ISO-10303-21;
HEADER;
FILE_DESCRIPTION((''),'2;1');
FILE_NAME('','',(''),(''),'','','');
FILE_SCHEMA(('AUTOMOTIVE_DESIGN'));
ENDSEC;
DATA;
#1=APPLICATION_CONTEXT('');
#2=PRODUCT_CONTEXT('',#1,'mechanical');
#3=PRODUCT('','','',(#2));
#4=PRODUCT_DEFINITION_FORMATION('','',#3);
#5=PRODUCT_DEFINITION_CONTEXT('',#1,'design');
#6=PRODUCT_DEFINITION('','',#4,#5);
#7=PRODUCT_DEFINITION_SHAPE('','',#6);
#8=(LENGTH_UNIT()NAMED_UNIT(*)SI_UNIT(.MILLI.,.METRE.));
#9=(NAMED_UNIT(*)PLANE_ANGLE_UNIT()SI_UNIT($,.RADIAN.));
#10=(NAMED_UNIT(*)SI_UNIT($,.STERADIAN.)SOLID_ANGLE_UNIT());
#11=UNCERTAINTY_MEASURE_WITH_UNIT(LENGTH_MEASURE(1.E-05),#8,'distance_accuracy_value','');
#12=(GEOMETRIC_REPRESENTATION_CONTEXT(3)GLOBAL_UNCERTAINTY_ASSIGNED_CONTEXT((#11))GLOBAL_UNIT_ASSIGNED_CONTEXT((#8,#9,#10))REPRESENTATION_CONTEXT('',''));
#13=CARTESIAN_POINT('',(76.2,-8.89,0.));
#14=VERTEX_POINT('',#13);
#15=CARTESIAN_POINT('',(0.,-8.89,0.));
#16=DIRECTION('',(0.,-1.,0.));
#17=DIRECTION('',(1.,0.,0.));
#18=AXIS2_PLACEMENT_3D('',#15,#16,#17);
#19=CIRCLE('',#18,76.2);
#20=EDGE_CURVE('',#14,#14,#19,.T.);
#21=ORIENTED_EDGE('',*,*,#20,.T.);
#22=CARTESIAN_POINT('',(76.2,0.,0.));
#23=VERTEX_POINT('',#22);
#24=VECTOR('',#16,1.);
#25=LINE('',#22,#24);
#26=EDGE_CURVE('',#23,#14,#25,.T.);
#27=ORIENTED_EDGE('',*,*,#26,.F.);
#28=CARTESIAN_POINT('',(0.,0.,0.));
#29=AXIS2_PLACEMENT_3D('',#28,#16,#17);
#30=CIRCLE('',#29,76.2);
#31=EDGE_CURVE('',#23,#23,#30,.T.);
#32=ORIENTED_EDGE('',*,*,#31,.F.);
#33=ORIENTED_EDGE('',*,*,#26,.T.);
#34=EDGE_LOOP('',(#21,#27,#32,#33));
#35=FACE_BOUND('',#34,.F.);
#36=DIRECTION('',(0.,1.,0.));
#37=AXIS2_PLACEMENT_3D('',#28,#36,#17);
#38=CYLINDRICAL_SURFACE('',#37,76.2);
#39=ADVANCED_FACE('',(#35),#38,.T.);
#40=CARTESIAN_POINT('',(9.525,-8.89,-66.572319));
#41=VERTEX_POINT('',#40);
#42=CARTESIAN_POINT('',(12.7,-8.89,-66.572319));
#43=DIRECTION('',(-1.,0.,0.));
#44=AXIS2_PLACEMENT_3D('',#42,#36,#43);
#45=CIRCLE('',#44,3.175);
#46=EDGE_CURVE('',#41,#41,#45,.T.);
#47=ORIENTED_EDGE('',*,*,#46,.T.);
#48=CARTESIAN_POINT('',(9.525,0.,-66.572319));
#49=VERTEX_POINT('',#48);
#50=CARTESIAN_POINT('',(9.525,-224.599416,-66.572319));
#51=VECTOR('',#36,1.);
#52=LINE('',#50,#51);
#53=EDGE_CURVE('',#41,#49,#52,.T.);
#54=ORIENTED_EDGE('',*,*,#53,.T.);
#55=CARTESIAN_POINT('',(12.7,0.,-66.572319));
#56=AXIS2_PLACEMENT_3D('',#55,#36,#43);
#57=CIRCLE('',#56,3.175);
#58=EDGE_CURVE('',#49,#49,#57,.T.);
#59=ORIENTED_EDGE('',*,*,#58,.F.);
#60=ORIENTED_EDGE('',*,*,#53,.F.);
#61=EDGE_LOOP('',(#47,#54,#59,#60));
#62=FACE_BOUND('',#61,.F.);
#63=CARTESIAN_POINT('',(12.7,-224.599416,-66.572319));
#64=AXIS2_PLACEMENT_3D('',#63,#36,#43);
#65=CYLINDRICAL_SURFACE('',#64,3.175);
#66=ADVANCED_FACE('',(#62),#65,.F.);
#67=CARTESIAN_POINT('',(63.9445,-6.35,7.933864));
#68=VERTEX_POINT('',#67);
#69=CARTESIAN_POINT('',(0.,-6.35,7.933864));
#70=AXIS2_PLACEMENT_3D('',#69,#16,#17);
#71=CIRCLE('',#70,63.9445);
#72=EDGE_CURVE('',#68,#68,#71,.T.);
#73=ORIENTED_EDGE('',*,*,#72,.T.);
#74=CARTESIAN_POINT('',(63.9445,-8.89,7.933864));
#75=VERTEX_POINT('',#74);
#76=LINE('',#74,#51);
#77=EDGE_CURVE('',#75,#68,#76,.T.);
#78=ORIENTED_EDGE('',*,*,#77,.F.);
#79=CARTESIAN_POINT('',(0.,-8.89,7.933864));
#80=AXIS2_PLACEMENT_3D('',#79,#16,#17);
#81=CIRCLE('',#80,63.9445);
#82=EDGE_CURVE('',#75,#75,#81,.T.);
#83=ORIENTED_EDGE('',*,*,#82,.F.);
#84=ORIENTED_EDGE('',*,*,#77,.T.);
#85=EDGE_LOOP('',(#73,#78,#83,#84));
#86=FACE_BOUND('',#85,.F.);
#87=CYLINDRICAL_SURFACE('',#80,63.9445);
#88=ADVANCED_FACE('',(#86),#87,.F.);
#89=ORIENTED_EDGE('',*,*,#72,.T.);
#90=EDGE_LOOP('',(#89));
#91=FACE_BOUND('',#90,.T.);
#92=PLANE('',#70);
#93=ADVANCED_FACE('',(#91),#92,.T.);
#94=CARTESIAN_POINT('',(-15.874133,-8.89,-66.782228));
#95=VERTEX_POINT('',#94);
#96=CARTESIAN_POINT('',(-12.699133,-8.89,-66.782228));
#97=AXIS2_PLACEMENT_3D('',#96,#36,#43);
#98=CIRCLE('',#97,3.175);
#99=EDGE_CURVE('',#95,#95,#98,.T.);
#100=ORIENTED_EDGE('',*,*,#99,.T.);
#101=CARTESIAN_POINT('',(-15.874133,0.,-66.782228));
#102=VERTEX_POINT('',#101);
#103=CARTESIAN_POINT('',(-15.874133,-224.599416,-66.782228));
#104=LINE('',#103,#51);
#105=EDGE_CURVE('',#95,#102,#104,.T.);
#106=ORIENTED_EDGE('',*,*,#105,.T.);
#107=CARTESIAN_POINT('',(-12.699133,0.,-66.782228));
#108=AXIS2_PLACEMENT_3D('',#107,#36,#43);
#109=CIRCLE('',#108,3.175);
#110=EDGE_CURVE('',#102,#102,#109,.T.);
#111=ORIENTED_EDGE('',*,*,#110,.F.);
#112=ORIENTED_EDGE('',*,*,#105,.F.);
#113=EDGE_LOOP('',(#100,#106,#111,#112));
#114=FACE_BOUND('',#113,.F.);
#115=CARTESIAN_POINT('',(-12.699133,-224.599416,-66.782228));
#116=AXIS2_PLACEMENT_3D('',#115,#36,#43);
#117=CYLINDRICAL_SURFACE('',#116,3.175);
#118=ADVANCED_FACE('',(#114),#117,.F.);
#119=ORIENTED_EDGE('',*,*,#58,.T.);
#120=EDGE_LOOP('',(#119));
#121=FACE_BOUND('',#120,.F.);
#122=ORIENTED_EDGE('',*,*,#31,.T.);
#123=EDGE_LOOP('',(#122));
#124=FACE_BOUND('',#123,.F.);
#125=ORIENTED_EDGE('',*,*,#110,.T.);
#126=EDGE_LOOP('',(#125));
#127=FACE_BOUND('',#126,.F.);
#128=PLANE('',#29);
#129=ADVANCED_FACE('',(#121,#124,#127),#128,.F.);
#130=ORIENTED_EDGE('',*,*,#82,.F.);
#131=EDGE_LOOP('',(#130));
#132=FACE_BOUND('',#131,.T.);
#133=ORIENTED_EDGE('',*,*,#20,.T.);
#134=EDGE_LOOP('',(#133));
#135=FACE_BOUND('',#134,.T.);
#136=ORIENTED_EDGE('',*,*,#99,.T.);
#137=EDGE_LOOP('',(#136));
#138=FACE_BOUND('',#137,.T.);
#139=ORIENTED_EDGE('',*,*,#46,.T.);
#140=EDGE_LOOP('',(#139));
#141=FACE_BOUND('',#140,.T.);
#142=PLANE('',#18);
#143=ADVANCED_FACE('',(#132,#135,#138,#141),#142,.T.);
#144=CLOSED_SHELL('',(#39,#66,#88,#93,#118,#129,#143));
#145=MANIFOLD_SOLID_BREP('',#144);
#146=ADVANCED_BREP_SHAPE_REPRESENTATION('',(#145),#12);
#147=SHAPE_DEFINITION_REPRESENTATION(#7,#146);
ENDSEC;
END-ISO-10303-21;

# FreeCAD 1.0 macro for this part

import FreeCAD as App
import Part
import Sketcher
from FreeCAD import Vector
Q = App.Units.Quantity

doc = App.newDocument("Part")
params = doc.addObject("Spreadsheet::Sheet", "Params")
for row, (alias, value) in enumerate([
    ("sketch1_diameter", "6 in"),
    ("pad1_length", "0.35 in"),
    ("sketch2_diameter", "5.035 in"),
    ("pocket1_length", "0.1 in"),
    ("sketch3_diameter", "0.25 in"),
    ("hole_diameter", "0.25 in"),
], start=1):
    params.set(f"A{row}", alias)
    params.set(f"B{row}", "=" + value)
    params.setAlias(f"B{row}", alias)

body = doc.addObject("PartDesign::Body", "Body")

sketch1 = body.newObject("Sketcher::SketchObject", "Sketch")
sketch1.AttachmentSupport = (doc.getObject("XZ_Plane"), [""])
sketch1.MapMode = "FlatFace"
sketch1.addGeometry(Part.Circle(Vector(0, 0, 0), Vector(0, 0, 1), 76), False)
sketch1.addConstraint([
    Sketcher.Constraint("Coincident", 0, 3, -1, 1),
    Sketcher.Constraint("Diameter", 0, Q("6 in")),
])
sketch1.setExpression("Constraints[1]", "Params.sketch1_diameter")
pad1 = body.newObject("PartDesign::Pad", "Pad")
pad1.Profile = sketch1
pad1.setExpression("Length", "Params.pad1_length")

sketch2 = body.newObject("Sketcher::SketchObject", "Sketch001")
sketch2.AttachmentSupport = (doc.getObject("XZ_Plane"), [""])
sketch2.MapMode = "FlatFace"
sketch2.AttachmentOffset = App.Placement(Vector(0, 0, 0.35 * 25.4), App.Rotation())
sketch2.addGeometry(Part.Circle(Vector(0, 8, 0), Vector(0, 0, 1), 64), False)
sketch2.addConstraint([
    Sketcher.Constraint("PointOnObject", 0, 3, -2),
    Sketcher.Constraint("Diameter", 0, Q("5.035 in")),
    Sketcher.Constraint("DistanceY", -1, 1, 0, 3, 7.933864),
])
sketch2.setExpression("Constraints[1]", "Params.sketch2_diameter")
pocket1 = body.newObject("PartDesign::Pocket", "Pocket")
pocket1.Profile = sketch2
pocket1.setExpression("Length", "Params.pocket1_length")

sketch3 = body.newObject("Sketcher::SketchObject", "Sketch002")
sketch3.AttachmentSupport = (doc.getObject("XZ_Plane"), [""])
sketch3.MapMode = "FlatFace"
sketch3.AttachmentOffset = App.Placement(Vector(0, 0, 0.35 * 25.4), App.Rotation())
sketch3.addGeometry([
    Part.Circle(Vector(-12.7, -66.8, 0), Vector(0, 0, 1), 3.2),
    Part.Circle(Vector(12.7, -66.6, 0), Vector(0, 0, 1), 3.2),
], False)
sketch3.addConstraint([
    Sketcher.Constraint("Equal", 0, 1),
    Sketcher.Constraint("Diameter", 0, Q("0.25 in")),
    Sketcher.Constraint("DistanceX", -1, 1, 1, 3, Q("0.5 in")),
    Sketcher.Constraint("DistanceY", 0, 3, -1, 1, 66.782228),
    Sketcher.Constraint("DistanceY", 1, 3, -1, 1, 66.572319),
    Sketcher.Constraint("DistanceX", 0, 3, -1, 1, 12.699133),
])
sketch3.setExpression("Constraints[1]", "Params.sketch3_diameter")
doc.recompute()
hole = body.newObject("PartDesign::Hole", "Hole")
hole.Profile = sketch3
hole.ThreadType = "None"
hole.setExpression("Diameter", "Params.hole_diameter")
hole.DepthType = "ThroughAll"

doc.recompute()
